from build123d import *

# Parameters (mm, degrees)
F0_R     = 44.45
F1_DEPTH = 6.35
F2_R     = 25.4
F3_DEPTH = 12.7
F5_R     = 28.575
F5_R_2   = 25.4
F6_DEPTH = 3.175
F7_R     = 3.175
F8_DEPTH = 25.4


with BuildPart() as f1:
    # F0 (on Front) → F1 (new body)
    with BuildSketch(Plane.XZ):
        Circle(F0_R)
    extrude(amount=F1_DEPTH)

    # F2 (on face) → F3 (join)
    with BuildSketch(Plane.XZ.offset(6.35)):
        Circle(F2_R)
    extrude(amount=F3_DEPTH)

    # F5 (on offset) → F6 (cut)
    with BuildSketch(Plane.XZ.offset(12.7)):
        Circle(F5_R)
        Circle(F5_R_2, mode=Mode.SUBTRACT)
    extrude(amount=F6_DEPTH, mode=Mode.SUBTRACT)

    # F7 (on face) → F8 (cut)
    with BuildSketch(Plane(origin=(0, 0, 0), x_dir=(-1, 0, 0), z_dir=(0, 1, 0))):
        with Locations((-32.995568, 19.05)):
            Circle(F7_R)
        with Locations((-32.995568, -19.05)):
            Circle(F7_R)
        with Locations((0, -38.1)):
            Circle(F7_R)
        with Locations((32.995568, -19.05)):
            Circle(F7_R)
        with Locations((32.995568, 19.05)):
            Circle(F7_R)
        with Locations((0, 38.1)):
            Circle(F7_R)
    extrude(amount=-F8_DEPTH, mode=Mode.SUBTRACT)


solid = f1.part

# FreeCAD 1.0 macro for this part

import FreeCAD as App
import Part
import Sketcher
Q = App.Units.Quantity

doc = App.newDocument("Part")
body = doc.addObject("PartDesign::Body", "Body")

sketch1 = body.newObject("Sketcher::SketchObject", "Sketch")
sketch1.AttachmentSupport = (doc.getObject("XZ_Plane"), [""])
sketch1.MapMode = "FlatFace"
sketch1.addGeometry(Part.Circle(App.Vector(0, 0, 0), App.Vector(0, 0, 1), 44.45), False)
sketch1.addConstraint(Sketcher.Constraint("Coincident", 0, 3, -1, 1))
sketch1.addConstraint(Sketcher.Constraint("Diameter", 0, Q("3.5 in")))
pad1 = body.newObject("PartDesign::Pad", "Pad")
pad1.Profile = sketch1
pad1.Length = Q("0.25 in")

sketch2 = body.newObject("Sketcher::SketchObject", "Sketch001")
sketch2.AttachmentSupport = (doc.getObject("XZ_Plane"), [""])
sketch2.MapMode = "FlatFace"
sketch2.AttachmentOffset = App.Placement(App.Vector(0, 0, 0.25 * 25.4), App.Rotation())
sketch2.addGeometry(Part.Circle(App.Vector(0, 0, 0), App.Vector(0, 0, 1), 25.4), False)
sketch2.addConstraint(Sketcher.Constraint("Coincident", 0, 3, -1, 1))
sketch2.addConstraint(Sketcher.Constraint("Diameter", 0, Q("2 in")))
pad2 = body.newObject("PartDesign::Pad", "Pad001")
pad2.Profile = sketch2
pad2.Length = Q("0.5 in")

sketch3 = body.newObject("Sketcher::SketchObject", "Sketch002")
sketch3.AttachmentSupport = (doc.getObject("XZ_Plane"), [""])
sketch3.MapMode = "FlatFace"
sketch3.AttachmentOffset = App.Placement(App.Vector(0, 0, 0.5 * 25.4), App.Rotation())
sketch3.addGeometry(Part.Circle(App.Vector(0, 0, 0), App.Vector(0, 0, 1), 28.575), False)
sketch3.addGeometry(Part.Circle(App.Vector(0, 0, 0), App.Vector(0, 0, 1), 25.4), False)
sketch3.addConstraint(Sketcher.Constraint("Coincident", 0, 3, -1, 1))
sketch3.addConstraint(Sketcher.Constraint("Coincident", 1, 3, -1, 1))
sketch3.addConstraint(Sketcher.Constraint("Diameter", 1, Q("2 in")))
sketch3.addConstraint(Sketcher.Constraint("Diameter", 0, Q("2.25 in")))
pocket1 = body.newObject("PartDesign::Pocket", "Pocket")
pocket1.Profile = sketch3
pocket1.Length = Q("0.125 in")
pocket1.Reversed = True

sketch4 = body.newObject("Sketcher::SketchObject", "Sketch003")
sketch4.AttachmentSupport = (doc.getObject("XZ_Plane"), [""])
sketch4.MapMode = "FlatFace"
sketch4.addGeometry(Part.Circle(App.Vector(32.995568, 19.05, 0), App.Vector(0, 0, 1), 3.175), False)
sketch4.addGeometry(Part.Circle(App.Vector(32.995568, -19.05, 0), App.Vector(0, 0, 1), 3.175), False)
sketch4.addGeometry(Part.Circle(App.Vector(0, -38.1, 0), App.Vector(0, 0, 1), 3.175), False)
sketch4.addGeometry(Part.Circle(App.Vector(-32.995568, -19.05, 0), App.Vector(0, 0, 1), 3.175), False)
sketch4.addGeometry(Part.Circle(App.Vector(-32.995568, 19.05, 0), App.Vector(0, 0, 1), 3.175), False)
sketch4.addGeometry(Part.Circle(App.Vector(0, 38.1, 0), App.Vector(0, 0, 1), 3.175), False)
sketch4.addConstraint(Sketcher.Constraint("Equal", 0, 1))
sketch4.addConstraint(Sketcher.Constraint("Equal", 1, 2))
sketch4.addConstraint(Sketcher.Constraint("Equal", 2, 3))
sketch4.addConstraint(Sketcher.Constraint("Equal", 3, 4))
sketch4.addConstraint(Sketcher.Constraint("Equal", 4, 5))
sketch4.addConstraint(Sketcher.Constraint("Symmetric", 0, 3, 3, 3, -1, 1))
sketch4.addConstraint(Sketcher.Constraint("Symmetric", 1, 3, 4, 3, -1, 1))
sketch4.addConstraint(Sketcher.Constraint("Symmetric", 2, 3, 5, 3, -1, 1))
sketch4.addConstraint(Sketcher.Constraint("Symmetric", 1, 3, 3, 3, -2))
sketch4.addConstraint(Sketcher.Constraint("PointOnObject", 2, 3, -2))
sketch4.addConstraint(Sketcher.Constraint("Diameter", 0, Q("0.25 in")))
sketch4.addConstraint(Sketcher.Constraint("DistanceY", 2, 3, 5, 3, Q("3 in")))
sketch4.addConstraint(Sketcher.Constraint("DistanceY", 1, 3, 0, 3, Q("1.5 in")))
sketch4.addConstraint(Sketcher.Constraint("DistanceX", -1, 1, 0, 3, Q("32.995568 mm")))
pocket2 = body.newObject("PartDesign::Pocket", "Pocket001")
pocket2.Profile = sketch4
pocket2.Length = Q("1 in")
pocket2.Reversed = True

doc.recompute()
